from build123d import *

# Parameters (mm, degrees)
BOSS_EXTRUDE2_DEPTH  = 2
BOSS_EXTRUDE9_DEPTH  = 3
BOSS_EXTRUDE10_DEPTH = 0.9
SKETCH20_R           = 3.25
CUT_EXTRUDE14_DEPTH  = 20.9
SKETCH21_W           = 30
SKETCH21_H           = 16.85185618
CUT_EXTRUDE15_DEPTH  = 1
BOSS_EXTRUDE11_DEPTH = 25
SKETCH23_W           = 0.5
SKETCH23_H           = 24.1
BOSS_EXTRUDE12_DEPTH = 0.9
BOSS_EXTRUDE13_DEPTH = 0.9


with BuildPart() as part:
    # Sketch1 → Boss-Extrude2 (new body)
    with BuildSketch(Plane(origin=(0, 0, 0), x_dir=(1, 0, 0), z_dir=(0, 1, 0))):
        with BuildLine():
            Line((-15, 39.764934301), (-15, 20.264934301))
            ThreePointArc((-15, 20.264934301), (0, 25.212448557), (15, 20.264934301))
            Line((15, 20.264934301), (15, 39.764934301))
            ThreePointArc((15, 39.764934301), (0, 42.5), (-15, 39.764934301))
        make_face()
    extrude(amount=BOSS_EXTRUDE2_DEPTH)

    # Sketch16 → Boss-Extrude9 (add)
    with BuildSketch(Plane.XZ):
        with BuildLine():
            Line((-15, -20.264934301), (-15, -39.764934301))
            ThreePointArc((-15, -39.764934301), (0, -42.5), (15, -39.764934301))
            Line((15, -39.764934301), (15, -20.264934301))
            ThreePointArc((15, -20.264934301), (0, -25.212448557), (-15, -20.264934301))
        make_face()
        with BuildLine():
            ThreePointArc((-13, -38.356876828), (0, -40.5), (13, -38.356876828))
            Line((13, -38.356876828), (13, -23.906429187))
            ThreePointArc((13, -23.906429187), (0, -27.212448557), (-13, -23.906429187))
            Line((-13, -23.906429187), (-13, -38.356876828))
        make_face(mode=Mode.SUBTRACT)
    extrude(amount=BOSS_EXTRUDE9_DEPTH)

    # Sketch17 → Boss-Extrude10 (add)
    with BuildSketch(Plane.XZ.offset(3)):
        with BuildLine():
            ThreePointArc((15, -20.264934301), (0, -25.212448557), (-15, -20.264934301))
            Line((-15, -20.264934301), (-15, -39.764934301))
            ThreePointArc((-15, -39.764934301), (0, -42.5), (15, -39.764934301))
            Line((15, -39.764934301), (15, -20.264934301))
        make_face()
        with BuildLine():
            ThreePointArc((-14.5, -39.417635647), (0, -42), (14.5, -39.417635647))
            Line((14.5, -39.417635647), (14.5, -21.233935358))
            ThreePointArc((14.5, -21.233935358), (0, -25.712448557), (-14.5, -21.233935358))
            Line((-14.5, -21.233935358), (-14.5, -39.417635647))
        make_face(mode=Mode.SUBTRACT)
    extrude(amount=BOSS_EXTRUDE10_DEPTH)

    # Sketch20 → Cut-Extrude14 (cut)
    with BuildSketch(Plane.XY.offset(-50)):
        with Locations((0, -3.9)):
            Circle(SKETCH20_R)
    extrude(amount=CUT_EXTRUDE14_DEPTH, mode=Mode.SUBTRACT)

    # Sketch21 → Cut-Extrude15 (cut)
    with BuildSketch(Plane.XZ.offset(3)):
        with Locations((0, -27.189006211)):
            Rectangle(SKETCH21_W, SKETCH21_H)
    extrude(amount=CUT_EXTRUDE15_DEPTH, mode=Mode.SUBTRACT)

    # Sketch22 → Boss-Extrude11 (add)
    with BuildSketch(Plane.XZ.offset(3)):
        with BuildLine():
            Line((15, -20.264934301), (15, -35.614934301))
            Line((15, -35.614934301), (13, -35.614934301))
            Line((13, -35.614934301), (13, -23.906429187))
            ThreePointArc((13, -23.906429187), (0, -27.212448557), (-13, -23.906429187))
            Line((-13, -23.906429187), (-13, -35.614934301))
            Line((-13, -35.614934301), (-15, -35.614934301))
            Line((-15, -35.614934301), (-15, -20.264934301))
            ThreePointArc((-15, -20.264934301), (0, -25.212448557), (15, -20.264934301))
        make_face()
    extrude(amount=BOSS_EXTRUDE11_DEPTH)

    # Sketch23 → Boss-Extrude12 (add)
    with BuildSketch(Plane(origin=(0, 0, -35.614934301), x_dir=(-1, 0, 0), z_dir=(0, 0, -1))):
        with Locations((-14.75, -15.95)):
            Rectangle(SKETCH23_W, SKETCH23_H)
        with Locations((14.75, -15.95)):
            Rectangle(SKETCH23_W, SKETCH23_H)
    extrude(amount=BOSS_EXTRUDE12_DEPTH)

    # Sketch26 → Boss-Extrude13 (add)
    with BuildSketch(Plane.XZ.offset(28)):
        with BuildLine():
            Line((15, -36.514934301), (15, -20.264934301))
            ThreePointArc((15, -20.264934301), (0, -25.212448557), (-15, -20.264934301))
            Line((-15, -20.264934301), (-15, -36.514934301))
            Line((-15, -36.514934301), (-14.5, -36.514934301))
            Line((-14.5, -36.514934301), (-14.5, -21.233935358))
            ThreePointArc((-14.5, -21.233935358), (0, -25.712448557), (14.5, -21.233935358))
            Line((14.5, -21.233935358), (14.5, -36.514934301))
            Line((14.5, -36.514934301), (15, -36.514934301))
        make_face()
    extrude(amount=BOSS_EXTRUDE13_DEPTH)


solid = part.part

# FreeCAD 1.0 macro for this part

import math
import FreeCAD as App
import Part
import Sketcher
from FreeCAD import Vector
Q = App.Units.Quantity


def add_polygon(sketch, points):
    """Adds a closed chain of lines whose ends are joined by coincident constraints."""
    first, n = sketch.GeometryCount, len(points)
    for a, b in zip(points, points[1:] + points[:1]):
        sketch.addGeometry(Part.LineSegment(App.Vector(*a, 0), App.Vector(*b, 0)), False)
    for i in range(n):
        sketch.addConstraint(Sketcher.Constraint("Coincident", first + i, 2, first + (i + 1) % n, 1))

doc = App.newDocument("Part")
body = doc.addObject("PartDesign::Body", "Body")

sketch1 = doc.addObject("Sketcher::SketchObject", "Sketch")
body.addObject(sketch1)
sketch1.AttachmentSupport = (doc.XZ_Plane, [""])
sketch1.MapMode = "FlatFace"
sketch1.addGeometry(Part.LineSegment(Vector(-15, -40, 0), Vector(-15, -20, 0)), False)
sketch1.addGeometry(Part.ArcOfCircle(Part.Circle(Vector(0, 0, 0), Vector(0, 0, 1), 25), math.radians(-127), math.radians(-53)), False)
sketch1.addGeometry(Part.LineSegment(Vector(15, -20, 0), Vector(15, -40, 0)), False)
sketch1.addGeometry(Part.ArcOfCircle(Part.Circle(Vector(0, 0, 0), Vector(0, 0, 1), 42), math.radians(-111), math.radians(-69)), False)
sketch1.addConstraint(Sketcher.Constraint("Coincident", 0, 2, 1, 1))
sketch1.addConstraint(Sketcher.Constraint("Coincident", 1, 2, 2, 1))
sketch1.addConstraint(Sketcher.Constraint("Coincident", 2, 2, 3, 2))
sketch1.addConstraint(Sketcher.Constraint("Coincident", 3, 1, 0, 1))
sketch1.addConstraint(Sketcher.Constraint("Vertical", 0))
sketch1.addConstraint(Sketcher.Constraint("Vertical", 2))
sketch1.addConstraint(Sketcher.Constraint("Coincident", 1, 3, -1, 1))
sketch1.addConstraint(Sketcher.Constraint("Coincident", 3, 3, -1, 1))
sketch1.addConstraint(Sketcher.Constraint("Horizontal", 0, 2, 1, 2))
sketch1.addConstraint(Sketcher.Constraint("Radius", 3, Q("42.5 mm")))
sketch1.addConstraint(Sketcher.Constraint("DistanceY", 0, 1, 0, 2, Q("19.5 mm")))
sketch1.addConstraint(Sketcher.Constraint("DistanceX", 0, 2, -1, 1, Q("15 mm")))
pad1 = doc.addObject("PartDesign::Pad", "Pad")
body.addObject(pad1)
pad1.Profile = sketch1
pad1.Length = 2
pad1.Reversed = True

sketch2 = doc.addObject("Sketcher::SketchObject", "Sketch001")
body.addObject(sketch2)
sketch2.AttachmentSupport = (doc.XZ_Plane, [""])
sketch2.MapMode = "FlatFace"
sketch2.addGeometry(Part.LineSegment(Vector(-15, -20, 0), Vector(-15, -40, 0)), False)
sketch2.addGeometry(Part.ArcOfCircle(Part.Circle(Vector(0, 0, 0), Vector(0, 0, 1), 42), math.radians(-111), math.radians(-69)), False)
sketch2.addGeometry(Part.LineSegment(Vector(15, -40, 0), Vector(15, -20, 0)), False)
sketch2.addGeometry(Part.ArcOfCircle(Part.Circle(Vector(0, 0, 0), Vector(0, 0, 1), 25), math.radians(-127), math.radians(-53)), False)
sketch2.addGeometry(Part.ArcOfCircle(Part.Circle(Vector(0, 0, 0), Vector(0, 0, 1), 40), math.radians(-109), math.radians(-71)), False)
sketch2.addGeometry(Part.LineSegment(Vector(-13, -38, 0), Vector(-13, -24, 0)), False)
sketch2.addGeometry(Part.ArcOfCircle(Part.Circle(Vector(0, 0, 0), Vector(0, 0, 1), 27), math.radians(-119), math.radians(-61)), False)
sketch2.addGeometry(Part.LineSegment(Vector(13, -24, 0), Vector(13, -38, 0)), False)
sketch2.addConstraint(Sketcher.Constraint("Coincident", 0, 2, 1, 1))
sketch2.addConstraint(Sketcher.Constraint("Coincident", 1, 2, 2, 1))
sketch2.addConstraint(Sketcher.Constraint("Coincident", 2, 2, 3, 2))
sketch2.addConstraint(Sketcher.Constraint("Coincident", 3, 1, 0, 1))
sketch2.addConstraint(Sketcher.Constraint("Coincident", 4, 1, 5, 1))
sketch2.addConstraint(Sketcher.Constraint("Coincident", 5, 2, 6, 1))
sketch2.addConstraint(Sketcher.Constraint("Coincident", 6, 2, 7, 1))
sketch2.addConstraint(Sketcher.Constraint("Coincident", 7, 2, 4, 2))
sketch2.addConstraint(Sketcher.Constraint("Vertical", 0))
sketch2.addConstraint(Sketcher.Constraint("Vertical", 2))
sketch2.addConstraint(Sketcher.Constraint("Vertical", 5))
sketch2.addConstraint(Sketcher.Constraint("Vertical", 7))
sketch2.addConstraint(Sketcher.Constraint("Coincident", 1, 3, -1, 1))
sketch2.addConstraint(Sketcher.Constraint("Coincident", 3, 3, -1, 1))
sketch2.addConstraint(Sketcher.Constraint("Coincident", 4, 3, -1, 1))
sketch2.addConstraint(Sketcher.Constraint("Coincident", 6, 3, -1, 1))
sketch2.addConstraint(Sketcher.Constraint("Horizontal", 0, 2, 1, 2))
sketch2.addConstraint(Sketcher.Constraint("Horizontal", 5, 2, 6, 2))
sketch2.addConstraint(Sketcher.Constraint("Radius", 1, Q("42.5 mm")))
sketch2.addConstraint(Sketcher.Constraint("Radius", 4, Q("40.5 mm")))
sketch2.addConstraint(Sketcher.Constraint("DistanceY", 0, 2, 0, 1, Q("19.5 mm")))
sketch2.addConstraint(Sketcher.Constraint("DistanceX", 0, 2, -1, 1, Q("15 mm")))
sketch2.addConstraint(Sketcher.Constraint("DistanceX", 4, 1, -1, 1, Q("13 mm")))
sketch2.addConstraint(Sketcher.Constraint("Radius", 6, Q("27.212449 mm")))
pad2 = doc.addObject("PartDesign::Pad", "Pad001")
body.addObject(pad2)
pad2.Profile = sketch2
pad2.Length = 3

sketch3 = doc.addObject("Sketcher::SketchObject", "Sketch002")
body.addObject(sketch3)
sketch3.AttachmentSupport = (doc.XZ_Plane, [""])
sketch3.MapMode = "FlatFace"
sketch3.AttachmentOffset = App.Placement(Vector(0, 0, 3), App.Rotation())
sketch3.addGeometry(Part.ArcOfCircle(Part.Circle(Vector(0, 0, 0), Vector(0, 0, 1), 25), math.radians(-127), math.radians(-53)), False)
sketch3.addGeometry(Part.LineSegment(Vector(-15, -20, 0), Vector(-15, -40, 0)), False)
sketch3.addGeometry(Part.ArcOfCircle(Part.Circle(Vector(0, 0, 0), Vector(0, 0, 1), 42), math.radians(-111), math.radians(-69)), False)
sketch3.addGeometry(Part.LineSegment(Vector(15, -40, 0), Vector(15, -20, 0)), False)
sketch3.addGeometry(Part.ArcOfCircle(Part.Circle(Vector(0, 0, 0), Vector(0, 0, 1), 42), math.radians(-110), math.radians(-70)), False)
sketch3.addGeometry(Part.LineSegment(Vector(-14, -39, 0), Vector(-14, -21, 0)), False)
sketch3.addGeometry(Part.ArcOfCircle(Part.Circle(Vector(0, 0, 0), Vector(0, 0, 1), 26), math.radians(-124), math.radians(-56)), False)
sketch3.addGeometry(Part.LineSegment(Vector(14, -21, 0), Vector(14, -39, 0)), False)
sketch3.addConstraint(Sketcher.Constraint("Coincident", 0, 1, 1, 1))
sketch3.addConstraint(Sketcher.Constraint("Coincident", 1, 2, 2, 1))
sketch3.addConstraint(Sketcher.Constraint("Coincident", 2, 2, 3, 1))
sketch3.addConstraint(Sketcher.Constraint("Coincident", 3, 2, 0, 2))
sketch3.addConstraint(Sketcher.Constraint("Coincident", 4, 1, 5, 1))
sketch3.addConstraint(Sketcher.Constraint("Coincident", 5, 2, 6, 1))
sketch3.addConstraint(Sketcher.Constraint("Coincident", 6, 2, 7, 1))
sketch3.addConstraint(Sketcher.Constraint("Coincident", 7, 2, 4, 2))
sketch3.addConstraint(Sketcher.Constraint("Vertical", 1))
sketch3.addConstraint(Sketcher.Constraint("Vertical", 3))
sketch3.addConstraint(Sketcher.Constraint("Vertical", 5))
sketch3.addConstraint(Sketcher.Constraint("Vertical", 7))
sketch3.addConstraint(Sketcher.Constraint("Coincident", 0, 3, -1, 1))
sketch3.addConstraint(Sketcher.Constraint("Coincident", 2, 3, -1, 1))
sketch3.addConstraint(Sketcher.Constraint("Coincident", 4, 3, -1, 1))
sketch3.addConstraint(Sketcher.Constraint("Coincident", 6, 3, -1, 1))
sketch3.addConstraint(Sketcher.Constraint("Horizontal", 1, 2, 2, 2))
sketch3.addConstraint(Sketcher.Constraint("Horizontal", 5, 2, 6, 2))
sketch3.addConstraint(Sketcher.Constraint("Radius", 4, Q("42 mm")))
sketch3.addConstraint(Sketcher.Constraint("Radius", 2, Q("42.5 mm")))
sketch3.addConstraint(Sketcher.Constraint("DistanceY", 1, 2, 1, 1, Q("19.5 mm")))
sketch3.addConstraint(Sketcher.Constraint("DistanceX", 0, 1, -1, 1, Q("15 mm")))
sketch3.addConstraint(Sketcher.Constraint("DistanceX", 4, 1, 7, 2, Q("29 mm")))
sketch3.addConstraint(Sketcher.Constraint("Radius", 6, Q("25.712449 mm")))
pad3 = doc.addObject("PartDesign::Pad", "Pad002")
body.addObject(pad3)
pad3.Profile = sketch3
pad3.Length = 0.9

sketch4 = doc.addObject("Sketcher::SketchObject", "Sketch003")
body.addObject(sketch4)
sketch4.AttachmentSupport = (doc.XY_Plane, [""])
sketch4.MapMode = "FlatFace"
sketch4.AttachmentOffset = App.Placement(Vector(0, 0, -50), App.Rotation())
sketch4.addGeometry(Part.Circle(Vector(0, -3.9, 0), Vector(0, 0, 1), 3.2), False)
sketch4.addConstraint(Sketcher.Constraint("PointOnObject", 0, 3, -2))
sketch4.addConstraint(Sketcher.Constraint("Diameter", 0, Q("6.5 mm")))
sketch4.addConstraint(Sketcher.Constraint("DistanceY", 0, 3, -1, 1, Q("3.9 mm")))
pocket1 = doc.addObject("PartDesign::Pocket", "Pocket")
body.addObject(pocket1)
pocket1.Profile = sketch4
pocket1.Length = 20.9
pocket1.Reversed = True

sketch5 = doc.addObject("Sketcher::SketchObject", "Sketch004")
body.addObject(sketch5)
sketch5.AttachmentSupport = (doc.XZ_Plane, [""])
sketch5.MapMode = "FlatFace"
sketch5.AttachmentOffset = App.Placement(Vector(0, 0, 3), App.Rotation())
add_polygon(sketch5, [(-15, -19), (-15, -36), (15, -36), (15, -19)])
sketch5.addConstraint(Sketcher.Constraint("Vertical", 0))
sketch5.addConstraint(Sketcher.Constraint("Horizontal", 1))
sketch5.addConstraint(Sketcher.Constraint("Vertical", 2))
sketch5.addConstraint(Sketcher.Constraint("Horizontal", 3))
sketch5.addConstraint(Sketcher.Constraint("DistanceX", 1, 1, 1, 2, Q("30 mm")))
sketch5.addConstraint(Sketcher.Constraint("DistanceX", 0, 2, -1, 1, Q("15 mm")))
sketch5.addConstraint(Sketcher.Constraint("DistanceY", 0, 2, 0, 1, Q("16.851856 mm")))
sketch5.addConstraint(Sketcher.Constraint("DistanceY", 2, 2, -1, 1, Q("18.763078 mm")))
pocket2 = doc.addObject("PartDesign::Pocket", "Pocket001")
body.addObject(pocket2)
pocket2.Profile = sketch5
pocket2.Length = 1
pocket2.Reversed = True

sketch6 = doc.addObject("Sketcher::SketchObject", "Sketch005")
body.addObject(sketch6)
sketch6.AttachmentSupport = (doc.XZ_Plane, [""])
sketch6.MapMode = "FlatFace"
sketch6.AttachmentOffset = App.Placement(Vector(0, 0, 3), App.Rotation())
sketch6.addGeometry(Part.LineSegment(Vector(15, -35.6, 0), Vector(15, -20.3, 0)), False)
sketch6.addGeometry(Part.ArcOfCircle(Part.Circle(Vector(0, 0, 0), Vector(0, 0, 1), 25.2), math.radians(-127), math.radians(-53)), False)
sketch6.addGeometry(Part.LineSegment(Vector(-15, -20.3, 0), Vector(-15, -35.6, 0)), False)
sketch6.addGeometry(Part.LineSegment(Vector(-15, -35.6, 0), Vector(-13, -35.6, 0)), False)
sketch6.addGeometry(Part.LineSegment(Vector(-13, -35.6, 0), Vector(-13, -23.9, 0)), False)
sketch6.addGeometry(Part.ArcOfCircle(Part.Circle(Vector(0, 0, 0), Vector(0, 0, 1), 27.2), math.radians(-119), math.radians(-61)), False)
sketch6.addGeometry(Part.LineSegment(Vector(13, -23.9, 0), Vector(13, -35.6, 0)), False)
sketch6.addGeometry(Part.LineSegment(Vector(13, -35.6, 0), Vector(15, -35.6, 0)), False)
sketch6.addConstraint(Sketcher.Constraint("Coincident", 0, 2, 1, 2))
sketch6.addConstraint(Sketcher.Constraint("Coincident", 1, 1, 2, 1))
sketch6.addConstraint(Sketcher.Constraint("Coincident", 2, 2, 3, 1))
sketch6.addConstraint(Sketcher.Constraint("Coincident", 3, 2, 4, 1))
sketch6.addConstraint(Sketcher.Constraint("Coincident", 4, 2, 5, 1))
sketch6.addConstraint(Sketcher.Constraint("Coincident", 5, 2, 6, 1))
sketch6.addConstraint(Sketcher.Constraint("Coincident", 6, 2, 7, 1))
sketch6.addConstraint(Sketcher.Constraint("Coincident", 7, 2, 0, 1))
sketch6.addConstraint(Sketcher.Constraint("Vertical", 0))
sketch6.addConstraint(Sketcher.Constraint("Vertical", 2))
sketch6.addConstraint(Sketcher.Constraint("Horizontal", 3))
sketch6.addConstraint(Sketcher.Constraint("Vertical", 4))
sketch6.addConstraint(Sketcher.Constraint("Vertical", 6))
sketch6.addConstraint(Sketcher.Constraint("Horizontal", 7))
sketch6.addConstraint(Sketcher.Constraint("Coincident", 1, 3, -1, 1))
sketch6.addConstraint(Sketcher.Constraint("Coincident", 5, 3, -1, 1))
sketch6.addConstraint(Sketcher.Constraint("Symmetric", 3, 2, 6, 2, -2))
sketch6.addConstraint(Sketcher.Constraint("Horizontal", 0, 2, 1, 1))
sketch6.addConstraint(Sketcher.Constraint("DistanceX", 3, 1, 3, 2, Q("2 mm")))
sketch6.addConstraint(Sketcher.Constraint("DistanceX", -1, 1, 0, 2, Q("15 mm")))
sketch6.addConstraint(Sketcher.Constraint("DistanceY", 0, 1, 0, 2, Q("15.35 mm")))
sketch6.addConstraint(Sketcher.Constraint("Radius", 1, Q("25.212449 mm")))
sketch6.addConstraint(Sketcher.Constraint("Radius", 5, Q("27.212449 mm")))
pad4 = doc.addObject("PartDesign::Pad", "Pad003")
body.addObject(pad4)
pad4.Profile = sketch6
pad4.Length = 25

sketch7 = doc.addObject("Sketcher::SketchObject", "Sketch006")
body.addObject(sketch7)
sketch7.AttachmentSupport = (doc.XY_Plane, [""])
sketch7.MapMode = "FlatFace"
sketch7.AttachmentOffset = App.Placement(Vector(0, 0, -35.614934), App.Rotation())
add_polygon(sketch7, [(15, -3.9), (15, -28), (14.5, -28), (14.5, -3.9)])
add_polygon(sketch7, [(-14.5, -3.9), (-14.5, -28), (-15, -28), (-15, -3.9)])
sketch7.addConstraint(Sketcher.Constraint("Vertical", 0))
sketch7.addConstraint(Sketcher.Constraint("Horizontal", 1))
sketch7.addConstraint(Sketcher.Constraint("Vertical", 2))
sketch7.addConstraint(Sketcher.Constraint("Horizontal", 3))
sketch7.addConstraint(Sketcher.Constraint("Vertical", 4))
sketch7.addConstraint(Sketcher.Constraint("Horizontal", 5))
sketch7.addConstraint(Sketcher.Constraint("Vertical", 6))
sketch7.addConstraint(Sketcher.Constraint("Horizontal", 7))
sketch7.addConstraint(Sketcher.Constraint("Symmetric", 1, 2, 4, 2, -2))
sketch7.addConstraint(Sketcher.Constraint("Symmetric", 3, 2, 6, 2, -2))
sketch7.addConstraint(Sketcher.Constraint("DistanceX", 1, 2, 1, 1, Q("0.5 mm")))
sketch7.addConstraint(Sketcher.Constraint("DistanceY", 0, 2, 0, 1, Q("24.1 mm")))
sketch7.addConstraint(Sketcher.Constraint("DistanceX", -1, 1, 0, 2, Q("15 mm")))
sketch7.addConstraint(Sketcher.Constraint("DistanceY", 0, 2, -1, 1, Q("28 mm")))
pad5 = doc.addObject("PartDesign::Pad", "Pad004")
body.addObject(pad5)
pad5.Profile = sketch7
pad5.Length = 0.9
pad5.Reversed = True

sketch8 = doc.addObject("Sketcher::SketchObject", "Sketch007")
body.addObject(sketch8)
sketch8.AttachmentSupport = (doc.XZ_Plane, [""])
sketch8.MapMode = "FlatFace"
sketch8.AttachmentOffset = App.Placement(Vector(0, 0, 28), App.Rotation())
sketch8.addGeometry(Part.LineSegment(Vector(15, -36.5, 0), Vector(15, -20.3, 0)), False)
sketch8.addGeometry(Part.ArcOfCircle(Part.Circle(Vector(0, 0, 0), Vector(0, 0, 1), 25.2), math.radians(-127), math.radians(-53)), False)
sketch8.addGeometry(Part.LineSegment(Vector(-15, -20.3, 0), Vector(-15, -36.5, 0)), False)
sketch8.addGeometry(Part.LineSegment(Vector(-15, -36.5, 0), Vector(-14.5, -36.5, 0)), False)
sketch8.addGeometry(Part.LineSegment(Vector(-14.5, -36.5, 0), Vector(-14.5, -21.2, 0)), False)
sketch8.addGeometry(Part.ArcOfCircle(Part.Circle(Vector(0, 0, 0), Vector(0, 0, 1), 25.7), math.radians(-124), math.radians(-56)), False)
sketch8.addGeometry(Part.LineSegment(Vector(14.5, -21.2, 0), Vector(14.5, -36.5, 0)), False)
sketch8.addGeometry(Part.LineSegment(Vector(14.5, -36.5, 0), Vector(15, -36.5, 0)), False)
sketch8.addConstraint(Sketcher.Constraint("Coincident", 0, 2, 1, 2))
sketch8.addConstraint(Sketcher.Constraint("Coincident", 1, 1, 2, 1))
sketch8.addConstraint(Sketcher.Constraint("Coincident", 2, 2, 3, 1))
sketch8.addConstraint(Sketcher.Constraint("Coincident", 3, 2, 4, 1))
sketch8.addConstraint(Sketcher.Constraint("Coincident", 4, 2, 5, 1))
sketch8.addConstraint(Sketcher.Constraint("Coincident", 5, 2, 6, 1))
sketch8.addConstraint(Sketcher.Constraint("Coincident", 6, 2, 7, 1))
sketch8.addConstraint(Sketcher.Constraint("Coincident", 7, 2, 0, 1))
sketch8.addConstraint(Sketcher.Constraint("Vertical", 0))
sketch8.addConstraint(Sketcher.Constraint("Vertical", 2))
sketch8.addConstraint(Sketcher.Constraint("Horizontal", 3))
sketch8.addConstraint(Sketcher.Constraint("Vertical", 4))
sketch8.addConstraint(Sketcher.Constraint("Vertical", 6))
sketch8.addConstraint(Sketcher.Constraint("Horizontal", 7))
sketch8.addConstraint(Sketcher.Constraint("Coincident", 1, 3, -1, 1))
sketch8.addConstraint(Sketcher.Constraint("Coincident", 5, 3, -1, 1))
sketch8.addConstraint(Sketcher.Constraint("Symmetric", 3, 2, 6, 2, -2))
sketch8.addConstraint(Sketcher.Constraint("Horizontal", 0, 2, 1, 1))
sketch8.addConstraint(Sketcher.Constraint("DistanceX", 3, 1, 3, 2, Q("0.5 mm")))
sketch8.addConstraint(Sketcher.Constraint("DistanceX", -1, 1, 0, 2, Q("15 mm")))
sketch8.addConstraint(Sketcher.Constraint("DistanceY", 0, 1, 0, 2, Q("16.25 mm")))
sketch8.addConstraint(Sketcher.Constraint("DistanceY", 4, 1, 4, 2, Q("15.280999 mm")))
sketch8.addConstraint(Sketcher.Constraint("Radius", 1, Q("25.212449 mm")))
pad6 = doc.addObject("PartDesign::Pad", "Pad005")
body.addObject(pad6)
pad6.Profile = sketch8
pad6.Length = 0.9

doc.recompute()
